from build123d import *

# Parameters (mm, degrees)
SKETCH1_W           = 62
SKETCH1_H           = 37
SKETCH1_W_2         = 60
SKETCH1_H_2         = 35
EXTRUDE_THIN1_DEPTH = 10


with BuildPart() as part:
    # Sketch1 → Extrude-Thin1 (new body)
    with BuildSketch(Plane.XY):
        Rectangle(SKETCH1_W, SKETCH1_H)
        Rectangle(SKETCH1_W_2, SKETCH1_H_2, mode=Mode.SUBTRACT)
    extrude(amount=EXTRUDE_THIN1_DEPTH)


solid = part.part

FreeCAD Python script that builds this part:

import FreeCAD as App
import Part
import Sketcher
from FreeCAD import Vector
Q = App.Units.Quantity


def add_polygon(sketch, points):
    """Adds a closed chain of lines whose ends are joined by coincident constraints."""
    first, n = sketch.GeometryCount, len(points)
    for a, b in zip(points, points[1:] + points[:1]):
        sketch.addGeometry(Part.LineSegment(App.Vector(*a, 0), App.Vector(*b, 0)), False)
    for i in range(n):
        sketch.addConstraint(Sketcher.Constraint("Coincident", first + i, 2, first + (i + 1) % n, 1))

doc = App.newDocument("Part")
body = doc.addObject("PartDesign::Body", "Body")

# Sketch on XY plane
sketch1 = doc.addObject("Sketcher::SketchObject", "Sketch")
body.addObject(sketch1)
sketch1.AttachmentSupport = (doc.XY_Plane, [""])
sketch1.MapMode = "FlatFace"
add_polygon(sketch1, [(-31, 18.5), (-31, -18.5), (31, -18.5), (31, 18.5)])  # lines 0-3
add_polygon(sketch1, [(30, -17.5), (-30, -17.5), (-30, 17.5), (30, 17.5)])  # lines 4-7
sketch1.addConstraint(Sketcher.Constraint("Vertical", 0))
sketch1.addConstraint(Sketcher.Constraint("Horizontal", 1))
sketch1.addConstraint(Sketcher.Constraint("Vertical", 2))
sketch1.addConstraint(Sketcher.Constraint("Horizontal", 3))
sketch1.addConstraint(Sketcher.Constraint("Horizontal", 4))
sketch1.addConstraint(Sketcher.Constraint("Vertical", 5))
sketch1.addConstraint(Sketcher.Constraint("Horizontal", 6))
sketch1.addConstraint(Sketcher.Constraint("Vertical", 7))
sketch1.addConstraint(Sketcher.Constraint("Symmetric", 0, 2, 2, 2, -1, 1))
sketch1.addConstraint(Sketcher.Constraint("Symmetric", 4, 2, 6, 2, -1, 1))
sketch1.addConstraint(Sketcher.Constraint("DistanceX", 1, 1, 1, 2, Q("62 mm")))
sketch1.addConstraint(Sketcher.Constraint("DistanceX", 4, 2, 4, 1, Q("60 mm")))
sketch1.addConstraint(Sketcher.Constraint("DistanceY", 0, 2, 0, 1, Q("37 mm")))
sketch1.addConstraint(Sketcher.Constraint("DistanceY", 5, 1, 5, 2, Q("35 mm")))
pad1 = doc.addObject("PartDesign::Pad", "Pad")
body.addObject(pad1)
pad1.Profile = sketch1
pad1.Length = 10

doc.recompute()
